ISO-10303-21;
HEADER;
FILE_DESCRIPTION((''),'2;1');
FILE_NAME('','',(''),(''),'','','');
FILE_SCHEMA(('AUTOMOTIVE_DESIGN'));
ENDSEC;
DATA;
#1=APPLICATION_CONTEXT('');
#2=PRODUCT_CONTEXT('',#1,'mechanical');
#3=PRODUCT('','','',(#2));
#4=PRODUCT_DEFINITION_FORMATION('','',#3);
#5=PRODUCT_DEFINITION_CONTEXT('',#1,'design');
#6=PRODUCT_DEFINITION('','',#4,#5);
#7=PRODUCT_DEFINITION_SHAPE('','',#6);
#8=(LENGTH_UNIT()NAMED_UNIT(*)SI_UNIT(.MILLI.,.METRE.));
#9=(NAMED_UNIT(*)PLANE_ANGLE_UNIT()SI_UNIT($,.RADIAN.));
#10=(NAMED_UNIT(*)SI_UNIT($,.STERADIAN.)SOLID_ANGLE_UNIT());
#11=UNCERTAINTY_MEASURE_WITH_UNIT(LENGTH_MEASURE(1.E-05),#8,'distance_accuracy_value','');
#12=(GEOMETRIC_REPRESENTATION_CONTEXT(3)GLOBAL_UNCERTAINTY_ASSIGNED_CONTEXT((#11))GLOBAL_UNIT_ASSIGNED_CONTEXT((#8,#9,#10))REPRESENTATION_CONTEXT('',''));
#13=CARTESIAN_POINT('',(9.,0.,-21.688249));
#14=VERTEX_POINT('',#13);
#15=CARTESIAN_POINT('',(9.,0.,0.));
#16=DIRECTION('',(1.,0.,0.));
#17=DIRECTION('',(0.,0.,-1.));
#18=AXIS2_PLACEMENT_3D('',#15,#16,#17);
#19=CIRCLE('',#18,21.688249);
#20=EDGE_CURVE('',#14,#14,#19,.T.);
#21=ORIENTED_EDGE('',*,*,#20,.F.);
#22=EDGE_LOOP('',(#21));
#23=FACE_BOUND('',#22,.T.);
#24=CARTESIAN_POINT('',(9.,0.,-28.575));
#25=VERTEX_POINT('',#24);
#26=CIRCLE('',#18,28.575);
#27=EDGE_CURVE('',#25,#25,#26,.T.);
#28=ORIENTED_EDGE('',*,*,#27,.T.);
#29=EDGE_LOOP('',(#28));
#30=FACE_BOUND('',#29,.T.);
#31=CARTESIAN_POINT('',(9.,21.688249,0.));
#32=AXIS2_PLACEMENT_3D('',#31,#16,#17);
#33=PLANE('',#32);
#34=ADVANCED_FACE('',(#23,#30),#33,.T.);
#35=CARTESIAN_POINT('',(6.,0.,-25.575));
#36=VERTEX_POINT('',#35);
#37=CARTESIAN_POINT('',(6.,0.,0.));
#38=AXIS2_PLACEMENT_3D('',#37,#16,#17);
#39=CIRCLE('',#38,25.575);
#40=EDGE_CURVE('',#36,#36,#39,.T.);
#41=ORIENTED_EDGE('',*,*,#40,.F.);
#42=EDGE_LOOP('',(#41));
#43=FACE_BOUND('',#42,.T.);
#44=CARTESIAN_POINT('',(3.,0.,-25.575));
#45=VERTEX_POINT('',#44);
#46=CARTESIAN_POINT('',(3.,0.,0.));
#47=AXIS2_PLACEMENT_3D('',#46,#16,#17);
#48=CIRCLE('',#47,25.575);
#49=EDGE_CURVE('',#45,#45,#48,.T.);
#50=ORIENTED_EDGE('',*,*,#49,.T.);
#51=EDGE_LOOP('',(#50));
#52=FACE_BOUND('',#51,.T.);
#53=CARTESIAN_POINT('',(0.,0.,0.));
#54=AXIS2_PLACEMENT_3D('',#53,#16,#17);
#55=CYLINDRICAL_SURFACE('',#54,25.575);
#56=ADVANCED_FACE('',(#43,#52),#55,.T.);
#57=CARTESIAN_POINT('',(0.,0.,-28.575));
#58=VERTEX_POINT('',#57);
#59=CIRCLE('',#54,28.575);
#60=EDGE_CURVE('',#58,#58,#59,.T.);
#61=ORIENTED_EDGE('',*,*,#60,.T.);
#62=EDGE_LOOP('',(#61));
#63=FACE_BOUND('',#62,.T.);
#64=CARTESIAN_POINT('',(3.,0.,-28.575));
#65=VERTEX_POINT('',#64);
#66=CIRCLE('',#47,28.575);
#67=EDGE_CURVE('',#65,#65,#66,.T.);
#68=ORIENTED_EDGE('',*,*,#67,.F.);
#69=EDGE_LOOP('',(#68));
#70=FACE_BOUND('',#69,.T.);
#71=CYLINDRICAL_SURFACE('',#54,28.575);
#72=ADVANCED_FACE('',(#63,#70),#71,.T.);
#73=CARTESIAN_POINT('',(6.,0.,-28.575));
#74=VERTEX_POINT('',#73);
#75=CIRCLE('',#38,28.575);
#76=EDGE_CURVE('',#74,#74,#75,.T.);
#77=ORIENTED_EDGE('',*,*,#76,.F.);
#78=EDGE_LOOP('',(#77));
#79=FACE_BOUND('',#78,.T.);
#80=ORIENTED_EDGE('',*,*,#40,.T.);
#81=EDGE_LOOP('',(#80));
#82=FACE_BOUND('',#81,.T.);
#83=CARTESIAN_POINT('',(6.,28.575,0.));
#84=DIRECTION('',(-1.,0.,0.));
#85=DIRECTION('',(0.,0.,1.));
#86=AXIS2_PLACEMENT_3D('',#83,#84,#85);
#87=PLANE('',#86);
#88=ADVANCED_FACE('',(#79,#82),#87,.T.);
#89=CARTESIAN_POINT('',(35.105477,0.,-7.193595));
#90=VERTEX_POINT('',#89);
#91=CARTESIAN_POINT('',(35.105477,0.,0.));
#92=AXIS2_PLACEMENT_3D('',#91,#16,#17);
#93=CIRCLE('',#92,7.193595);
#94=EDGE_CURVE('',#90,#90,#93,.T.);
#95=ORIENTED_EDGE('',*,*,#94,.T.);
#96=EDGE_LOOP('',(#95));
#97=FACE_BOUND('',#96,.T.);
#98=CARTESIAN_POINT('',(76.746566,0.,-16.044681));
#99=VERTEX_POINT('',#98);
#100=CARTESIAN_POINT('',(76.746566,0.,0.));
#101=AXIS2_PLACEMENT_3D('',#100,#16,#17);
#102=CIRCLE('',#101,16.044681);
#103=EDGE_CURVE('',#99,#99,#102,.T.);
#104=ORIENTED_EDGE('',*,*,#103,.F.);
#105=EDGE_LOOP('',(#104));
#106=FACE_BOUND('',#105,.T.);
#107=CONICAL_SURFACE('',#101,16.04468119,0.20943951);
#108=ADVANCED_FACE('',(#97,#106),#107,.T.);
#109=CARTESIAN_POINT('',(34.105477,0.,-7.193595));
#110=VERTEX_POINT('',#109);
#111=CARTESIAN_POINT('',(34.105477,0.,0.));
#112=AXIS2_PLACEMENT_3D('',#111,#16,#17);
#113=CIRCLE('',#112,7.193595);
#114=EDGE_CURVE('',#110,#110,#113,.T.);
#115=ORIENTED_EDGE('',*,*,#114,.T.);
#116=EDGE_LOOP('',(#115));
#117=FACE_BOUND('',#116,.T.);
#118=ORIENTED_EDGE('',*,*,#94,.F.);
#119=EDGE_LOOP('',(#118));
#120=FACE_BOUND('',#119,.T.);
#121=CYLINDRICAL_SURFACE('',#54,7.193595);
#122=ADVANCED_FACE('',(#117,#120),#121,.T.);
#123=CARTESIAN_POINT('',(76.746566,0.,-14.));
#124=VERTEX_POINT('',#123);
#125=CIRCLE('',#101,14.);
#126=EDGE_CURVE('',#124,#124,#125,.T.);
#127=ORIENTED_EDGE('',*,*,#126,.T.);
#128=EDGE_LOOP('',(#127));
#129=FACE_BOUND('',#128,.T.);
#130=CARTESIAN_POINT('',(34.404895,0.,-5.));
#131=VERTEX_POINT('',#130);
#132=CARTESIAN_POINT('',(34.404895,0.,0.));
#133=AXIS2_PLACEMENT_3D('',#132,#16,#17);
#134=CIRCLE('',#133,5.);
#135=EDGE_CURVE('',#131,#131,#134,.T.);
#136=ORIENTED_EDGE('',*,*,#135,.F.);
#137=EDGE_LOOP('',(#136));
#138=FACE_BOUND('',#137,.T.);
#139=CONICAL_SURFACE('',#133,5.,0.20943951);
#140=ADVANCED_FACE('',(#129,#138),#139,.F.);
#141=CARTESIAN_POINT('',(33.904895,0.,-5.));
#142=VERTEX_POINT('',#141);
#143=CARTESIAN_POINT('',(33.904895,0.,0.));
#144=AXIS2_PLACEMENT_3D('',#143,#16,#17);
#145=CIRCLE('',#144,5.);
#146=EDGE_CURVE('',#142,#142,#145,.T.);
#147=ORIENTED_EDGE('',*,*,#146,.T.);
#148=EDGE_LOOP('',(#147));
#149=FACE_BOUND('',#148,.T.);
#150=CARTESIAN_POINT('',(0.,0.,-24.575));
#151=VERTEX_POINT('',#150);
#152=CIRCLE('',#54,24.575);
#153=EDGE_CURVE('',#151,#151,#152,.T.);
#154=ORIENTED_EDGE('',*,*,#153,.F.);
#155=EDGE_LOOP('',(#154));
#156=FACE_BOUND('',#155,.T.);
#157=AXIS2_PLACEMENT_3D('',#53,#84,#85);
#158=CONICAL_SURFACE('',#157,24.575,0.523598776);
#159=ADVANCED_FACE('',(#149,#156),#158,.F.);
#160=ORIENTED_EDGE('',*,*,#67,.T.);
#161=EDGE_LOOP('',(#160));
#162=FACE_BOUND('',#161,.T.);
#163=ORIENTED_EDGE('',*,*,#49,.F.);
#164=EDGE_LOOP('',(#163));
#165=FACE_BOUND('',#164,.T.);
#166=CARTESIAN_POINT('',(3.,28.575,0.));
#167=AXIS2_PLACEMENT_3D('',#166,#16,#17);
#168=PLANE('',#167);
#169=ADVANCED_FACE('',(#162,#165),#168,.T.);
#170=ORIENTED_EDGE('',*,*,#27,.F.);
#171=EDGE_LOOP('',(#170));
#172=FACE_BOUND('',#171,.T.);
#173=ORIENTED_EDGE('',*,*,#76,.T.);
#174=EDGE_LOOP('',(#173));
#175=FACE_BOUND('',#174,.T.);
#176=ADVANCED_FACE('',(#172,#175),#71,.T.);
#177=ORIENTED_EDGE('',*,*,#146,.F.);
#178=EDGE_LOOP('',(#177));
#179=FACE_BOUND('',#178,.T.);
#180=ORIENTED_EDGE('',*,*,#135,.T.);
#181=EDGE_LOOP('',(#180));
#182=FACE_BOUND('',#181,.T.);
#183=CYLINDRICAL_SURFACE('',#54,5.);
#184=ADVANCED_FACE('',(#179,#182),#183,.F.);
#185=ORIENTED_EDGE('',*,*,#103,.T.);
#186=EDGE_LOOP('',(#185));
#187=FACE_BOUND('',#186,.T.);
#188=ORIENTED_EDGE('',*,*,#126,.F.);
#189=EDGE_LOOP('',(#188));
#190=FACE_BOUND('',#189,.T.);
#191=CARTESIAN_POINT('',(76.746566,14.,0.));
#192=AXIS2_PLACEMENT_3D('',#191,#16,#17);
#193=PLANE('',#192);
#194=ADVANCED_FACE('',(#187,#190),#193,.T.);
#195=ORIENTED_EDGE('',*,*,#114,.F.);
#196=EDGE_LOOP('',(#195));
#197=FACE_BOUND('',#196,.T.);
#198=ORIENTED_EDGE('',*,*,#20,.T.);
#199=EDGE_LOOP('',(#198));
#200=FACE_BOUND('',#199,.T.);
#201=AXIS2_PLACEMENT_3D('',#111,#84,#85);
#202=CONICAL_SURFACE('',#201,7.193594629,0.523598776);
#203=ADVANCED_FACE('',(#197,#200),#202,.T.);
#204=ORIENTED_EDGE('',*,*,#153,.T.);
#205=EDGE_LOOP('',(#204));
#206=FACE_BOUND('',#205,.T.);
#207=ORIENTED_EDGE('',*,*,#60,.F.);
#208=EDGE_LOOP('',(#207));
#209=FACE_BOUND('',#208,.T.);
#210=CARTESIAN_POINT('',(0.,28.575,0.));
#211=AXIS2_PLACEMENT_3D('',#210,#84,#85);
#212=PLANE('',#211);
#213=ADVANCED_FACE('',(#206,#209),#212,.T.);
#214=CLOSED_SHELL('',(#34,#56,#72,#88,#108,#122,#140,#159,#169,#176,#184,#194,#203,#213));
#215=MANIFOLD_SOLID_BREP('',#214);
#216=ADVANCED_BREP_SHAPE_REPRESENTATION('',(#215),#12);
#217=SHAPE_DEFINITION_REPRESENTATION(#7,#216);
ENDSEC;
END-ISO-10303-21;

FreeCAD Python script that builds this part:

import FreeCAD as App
import Part
import Sketcher
Q = App.Units.Quantity


def add_polygon(sketch, points):
    """Adds a closed chain of lines whose ends are joined by coincident constraints."""
    first, n = sketch.GeometryCount, len(points)
    for a, b in zip(points, points[1:] + points[:1]):
        sketch.addGeometry(Part.LineSegment(App.Vector(*a, 0), App.Vector(*b, 0)), False)
    for i in range(n):
        sketch.addConstraint(Sketcher.Constraint("Coincident", first + i, 2, first + (i + 1) % n, 1))

doc = App.newDocument("Part")
body = doc.addObject("PartDesign::Body", "Body")

sketch1 = body.newObject("Sketcher::SketchObject", "Sketch")
sketch1.AttachmentSupport = (doc.getObject("XY_Plane"), [""])
sketch1.MapMode = "FlatFace"
add_polygon(sketch1, [(0, 28.6), (0, 24.6), (33.9, 5), (34.4, 5), (76.7, 14), (76.7, 16), (35.1, 7.2), (34.1, 7.2), (9, 21.7), (9, 28.6), (6, 28.6), (6, 25.6), (3, 25.6), (3, 28.6)])
sketch1.addConstraint([
    Sketcher.Constraint("Vertical", 0),
    Sketcher.Constraint("Horizontal", 2),
    Sketcher.Constraint("Vertical", 4),
    Sketcher.Constraint("Horizontal", 6),
    Sketcher.Constraint("Vertical", 8),
    Sketcher.Constraint("Horizontal", 9),
    Sketcher.Constraint("Vertical", 10),
    Sketcher.Constraint("Horizontal", 11),
    Sketcher.Constraint("Vertical", 12),
    Sketcher.Constraint("Horizontal", 13),
    Sketcher.Constraint("PointOnObject", 0, 2, -2),
    Sketcher.Constraint("Parallel", 3, 5),
    Sketcher.Constraint("Parallel", 1, 7),
    Sketcher.Constraint("Horizontal", 9, 2, 12, 2),
    Sketcher.Constraint("Equal", 9, 11),
    Sketcher.Constraint("Equal", 11, 13),
    Sketcher.Constraint("Equal", 13, 10),
    Sketcher.Constraint("DistanceX", 6, 2, 6, 1, 1.0),
    Sketcher.Constraint("DistanceX", 9, 2, 9, 1, 3.0),
    Sketcher.Constraint("DistanceY", 0, 2, 0, 1, 4.0),
    Sketcher.Constraint("Angle", 1, Q("-30 deg")),
    Sketcher.Constraint("Angle", 3, Q("12 deg")),
    Sketcher.Constraint("DistanceX", 2, 1, 2, 2, 0.5),
    Sketcher.Constraint("DistanceY", -1, 1, 1, 2, 5.0),
    Sketcher.Constraint("DistanceY", -1, 1, 3, 2, 14.0),
    Sketcher.Constraint("Distance", 1, 39.15),
    Sketcher.Constraint("DistanceY", 4, 1, 4, 2, 2.044681),
    Sketcher.Constraint("DistanceY", 8, 1, 8, 2, 6.886751),
])
revolution = body.newObject("PartDesign::Revolution", "Revolution")
revolution.Profile = sketch1
revolution.ReferenceAxis = (sketch1, ["H_Axis"])
revolution.Angle = 360

doc.recompute()
